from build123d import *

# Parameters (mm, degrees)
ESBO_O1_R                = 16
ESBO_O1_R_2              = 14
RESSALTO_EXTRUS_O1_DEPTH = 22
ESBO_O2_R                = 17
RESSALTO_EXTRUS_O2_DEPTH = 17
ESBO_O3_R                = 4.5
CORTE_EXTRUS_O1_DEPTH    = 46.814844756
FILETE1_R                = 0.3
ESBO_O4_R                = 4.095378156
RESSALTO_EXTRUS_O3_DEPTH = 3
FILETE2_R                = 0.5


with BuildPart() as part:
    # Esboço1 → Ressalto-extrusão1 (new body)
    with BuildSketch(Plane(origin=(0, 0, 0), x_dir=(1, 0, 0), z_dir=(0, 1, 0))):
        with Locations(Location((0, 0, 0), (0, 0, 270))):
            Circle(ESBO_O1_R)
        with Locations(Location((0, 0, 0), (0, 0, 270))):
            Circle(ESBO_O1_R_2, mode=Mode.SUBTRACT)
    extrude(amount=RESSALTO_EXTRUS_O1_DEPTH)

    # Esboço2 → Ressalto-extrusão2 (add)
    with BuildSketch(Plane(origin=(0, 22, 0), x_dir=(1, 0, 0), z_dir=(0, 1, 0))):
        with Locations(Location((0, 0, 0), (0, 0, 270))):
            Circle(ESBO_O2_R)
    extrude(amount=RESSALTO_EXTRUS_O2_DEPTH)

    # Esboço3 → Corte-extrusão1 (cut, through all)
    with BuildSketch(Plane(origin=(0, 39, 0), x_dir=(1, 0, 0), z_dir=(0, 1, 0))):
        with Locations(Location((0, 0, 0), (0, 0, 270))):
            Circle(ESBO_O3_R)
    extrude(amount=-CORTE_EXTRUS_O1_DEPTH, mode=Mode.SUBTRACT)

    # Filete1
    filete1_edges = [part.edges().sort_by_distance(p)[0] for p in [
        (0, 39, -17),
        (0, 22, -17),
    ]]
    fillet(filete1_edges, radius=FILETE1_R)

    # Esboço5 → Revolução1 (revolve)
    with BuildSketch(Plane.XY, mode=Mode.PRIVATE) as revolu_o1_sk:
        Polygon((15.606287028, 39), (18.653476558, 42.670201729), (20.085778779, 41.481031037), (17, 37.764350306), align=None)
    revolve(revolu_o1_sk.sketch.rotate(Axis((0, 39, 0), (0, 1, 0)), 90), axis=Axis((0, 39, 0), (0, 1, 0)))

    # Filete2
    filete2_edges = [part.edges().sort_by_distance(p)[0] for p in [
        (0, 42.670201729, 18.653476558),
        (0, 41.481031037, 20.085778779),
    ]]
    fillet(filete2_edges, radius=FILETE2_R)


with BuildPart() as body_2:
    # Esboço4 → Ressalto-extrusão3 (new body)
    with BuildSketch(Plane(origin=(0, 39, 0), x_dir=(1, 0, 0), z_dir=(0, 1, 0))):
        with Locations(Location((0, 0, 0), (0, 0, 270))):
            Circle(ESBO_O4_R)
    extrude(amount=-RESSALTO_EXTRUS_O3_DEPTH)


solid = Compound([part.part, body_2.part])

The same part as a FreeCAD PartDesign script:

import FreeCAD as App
import Part
import Sketcher
Q = App.Units.Quantity


def edges_at(feature, points):
    """Names of the edges that pass closest to the given points."""
    edges = feature.Shape.Edges
    near = lambda p: min(range(len(edges)), key=lambda i: edges[i].distToShape(Part.Vertex(*p))[0])
    return sorted({f"Edge{near(p) + 1}" for p in points})

doc = App.newDocument("Part")
params = doc.addObject("Spreadsheet::Sheet", "Params")
for row, (alias, value) in enumerate([
    ("sketch1_diameter", "32 mm"),
    ("sketch1_diameter2", "28 mm"),
    ("pad1_length", "22 mm"),
    ("sketch2_diameter", "34 mm"),
    ("pad2_length", "17 mm"),
    ("sketch3_diameter", "9 mm"),
    ("fillet_radius", "0.3 mm"),
    ("revolution_angle", "360 deg"),
    ("fillet2_radius", "0.5 mm"),
    ("pad3_length", "3 mm"),
], start=1):
    params.set(f"A{row}", alias)
    params.set(f"B{row}", "=" + value)
    params.setAlias(f"B{row}", alias)

body = doc.addObject("PartDesign::Body", "Body")

# Sketch on XZ plane
sketch1 = body.newObject("Sketcher::SketchObject", "Sketch")
sketch1.AttachmentSupport = (doc.getObject("XZ_Plane"), [""])
sketch1.MapMode = "FlatFace"
sketch1.addGeometry(Part.Circle(App.Vector(0, 0, 0), App.Vector(0, 0, 1), 16), False)
sketch1.addGeometry(Part.Circle(App.Vector(0, 0, 0), App.Vector(0, 0, 1), 14), False)
sketch1.addConstraint(Sketcher.Constraint("Coincident", 0, 3, -1, 1))
sketch1.addConstraint(Sketcher.Constraint("Coincident", 1, 3, -1, 1))
sketch1.addConstraint(Sketcher.Constraint("Diameter", 0, Q("32 mm")))
sketch1.addConstraint(Sketcher.Constraint("Diameter", 1, Q("28 mm")))
sketch1.setExpression("Constraints[2]", "Params.sketch1_diameter")
sketch1.setExpression("Constraints[3]", "Params.sketch1_diameter2")
pad1 = body.newObject("PartDesign::Pad", "Pad")
pad1.Profile = sketch1
pad1.setExpression("Length", "Params.pad1_length")
pad1.Reversed = True

# Sketch on XZ plane
sketch2 = body.newObject("Sketcher::SketchObject", "Sketch001")
sketch2.AttachmentSupport = (doc.getObject("XZ_Plane"), [""])
sketch2.MapMode = "FlatFace"
sketch2.AttachmentOffset = App.Placement(App.Vector(0, 0, -22), App.Rotation())
sketch2.addGeometry(Part.Circle(App.Vector(0, 0, 0), App.Vector(0, 0, 1), 17), False)
sketch2.addConstraint(Sketcher.Constraint("Coincident", 0, 3, -1, 1))
sketch2.addConstraint(Sketcher.Constraint("Diameter", 0, Q("34 mm")))
sketch2.setExpression("Constraints[1]", "Params.sketch2_diameter")
pad2 = body.newObject("PartDesign::Pad", "Pad001")
pad2.Profile = sketch2
pad2.setExpression("Length", "Params.pad2_length")
pad2.Reversed = True

# Sketch on XZ plane
sketch3 = body.newObject("Sketcher::SketchObject", "Sketch002")
sketch3.AttachmentSupport = (doc.getObject("XZ_Plane"), [""])
sketch3.MapMode = "FlatFace"
sketch3.AttachmentOffset = App.Placement(App.Vector(0, 0, -39), App.Rotation())
sketch3.addGeometry(Part.Circle(App.Vector(0, 0, 0), App.Vector(0, 0, 1), 4.5), False)
sketch3.addConstraint(Sketcher.Constraint("Coincident", 0, 3, -1, 1))
sketch3.addConstraint(Sketcher.Constraint("Diameter", 0, Q("9 mm")))
sketch3.setExpression("Constraints[1]", "Params.sketch3_diameter")
pocket1 = body.newObject("PartDesign::Pocket", "Pocket")
pocket1.Profile = sketch3
pocket1.Type = "ThroughAll"
pocket1.Reversed = True
doc.recompute()

fillet = body.newObject("PartDesign::Fillet", "Fillet")
fillet.Base = (pocket1, edges_at(pocket1, [(0, 39, -17), (0, 22, -17)]))
fillet.setExpression("Radius", "Params.fillet_radius")

# Sketch on XY plane
sketch4 = body.newObject("Sketcher::SketchObject", "Sketch003")
sketch4.AttachmentSupport = (doc.getObject("XY_Plane"), [""])
sketch4.MapMode = "FlatFace"
sketch4.addGeometry(Part.LineSegment(App.Vector(18.653477, 42.670202, 0), App.Vector(15.606287, 39, 0)), False)
sketch4.addGeometry(Part.LineSegment(App.Vector(15.606287, 39, 0), App.Vector(17, 37.76435, 0)), False)
sketch4.addGeometry(Part.LineSegment(App.Vector(17, 37.76435, 0), App.Vector(20.085779, 41.481031, 0)), False)
sketch4.addGeometry(Part.LineSegment(App.Vector(20.085779, 41.481031, 0), App.Vector(18.653477, 42.670202, 0)), False)
sketch4.addConstraint(Sketcher.Constraint("Coincident", 0, 2, 1, 1))
sketch4.addConstraint(Sketcher.Constraint("Coincident", 1, 2, 2, 1))
sketch4.addConstraint(Sketcher.Constraint("Coincident", 2, 2, 3, 1))
sketch4.addConstraint(Sketcher.Constraint("Coincident", 3, 2, 0, 1))
sketch4.addConstraint(Sketcher.Constraint("Parallel", 0, 2))
sketch4.addConstraint(Sketcher.Constraint("Perpendicular", 2, 3))
sketch4.addConstraint(Sketcher.Constraint("DistanceY", -1, 1, 0, 2, Q("39 mm")))
sketch4.addConstraint(Sketcher.Constraint("DistanceX", -1, 1, 1, 2, Q("17 mm")))
sketch4.addConstraint(Sketcher.Constraint("Distance", 0, Q("4.770298 mm")))
sketch4.addConstraint(Sketcher.Constraint("DistanceY", -1, 1, 3, 2, Q("42.670202 mm")))
sketch4.addConstraint(Sketcher.Constraint("Distance", 2, Q("4.830709 mm")))
sketch4.addConstraint(Sketcher.Constraint("DistanceY", -1, 1, 1, 2, Q("37.76435 mm")))
revolution = body.newObject("PartDesign::Revolution", "Revolution")
revolution.Profile = sketch4
revolution.ReferenceAxis = (sketch4, ["V_Axis"])
revolution.setExpression("Angle", "Params.revolution_angle")
doc.recompute()

fillet2 = body.newObject("PartDesign::Fillet", "Fillet001")
fillet2.Base = (revolution, edges_at(revolution, [(0, 42.67, 18.653), (0, 41.481, 20.086)]))
fillet2.setExpression("Radius", "Params.fillet2_radius")
body2 = doc.addObject("PartDesign::Body", "Body001")

# Sketch on XZ plane
sketch5 = body2.newObject("Sketcher::SketchObject", "Sketch004")
sketch5.AttachmentSupport = (doc.getObject("XZ_Plane001"), [""])
sketch5.MapMode = "FlatFace"
sketch5.AttachmentOffset = App.Placement(App.Vector(0, 0, -39), App.Rotation())
sketch5.addGeometry(Part.Circle(App.Vector(0, 0, 0), App.Vector(0, 0, 1), 4.095378), False)
sketch5.addConstraint(Sketcher.Constraint("Coincident", 0, 3, -1, 1))
sketch5.addConstraint(Sketcher.Constraint("Diameter", 0, Q("8.190756 mm")))
pad3 = body2.newObject("PartDesign::Pad", "Pad002")
pad3.Profile = sketch5
pad3.setExpression("Length", "Params.pad3_length")

doc.recompute()
